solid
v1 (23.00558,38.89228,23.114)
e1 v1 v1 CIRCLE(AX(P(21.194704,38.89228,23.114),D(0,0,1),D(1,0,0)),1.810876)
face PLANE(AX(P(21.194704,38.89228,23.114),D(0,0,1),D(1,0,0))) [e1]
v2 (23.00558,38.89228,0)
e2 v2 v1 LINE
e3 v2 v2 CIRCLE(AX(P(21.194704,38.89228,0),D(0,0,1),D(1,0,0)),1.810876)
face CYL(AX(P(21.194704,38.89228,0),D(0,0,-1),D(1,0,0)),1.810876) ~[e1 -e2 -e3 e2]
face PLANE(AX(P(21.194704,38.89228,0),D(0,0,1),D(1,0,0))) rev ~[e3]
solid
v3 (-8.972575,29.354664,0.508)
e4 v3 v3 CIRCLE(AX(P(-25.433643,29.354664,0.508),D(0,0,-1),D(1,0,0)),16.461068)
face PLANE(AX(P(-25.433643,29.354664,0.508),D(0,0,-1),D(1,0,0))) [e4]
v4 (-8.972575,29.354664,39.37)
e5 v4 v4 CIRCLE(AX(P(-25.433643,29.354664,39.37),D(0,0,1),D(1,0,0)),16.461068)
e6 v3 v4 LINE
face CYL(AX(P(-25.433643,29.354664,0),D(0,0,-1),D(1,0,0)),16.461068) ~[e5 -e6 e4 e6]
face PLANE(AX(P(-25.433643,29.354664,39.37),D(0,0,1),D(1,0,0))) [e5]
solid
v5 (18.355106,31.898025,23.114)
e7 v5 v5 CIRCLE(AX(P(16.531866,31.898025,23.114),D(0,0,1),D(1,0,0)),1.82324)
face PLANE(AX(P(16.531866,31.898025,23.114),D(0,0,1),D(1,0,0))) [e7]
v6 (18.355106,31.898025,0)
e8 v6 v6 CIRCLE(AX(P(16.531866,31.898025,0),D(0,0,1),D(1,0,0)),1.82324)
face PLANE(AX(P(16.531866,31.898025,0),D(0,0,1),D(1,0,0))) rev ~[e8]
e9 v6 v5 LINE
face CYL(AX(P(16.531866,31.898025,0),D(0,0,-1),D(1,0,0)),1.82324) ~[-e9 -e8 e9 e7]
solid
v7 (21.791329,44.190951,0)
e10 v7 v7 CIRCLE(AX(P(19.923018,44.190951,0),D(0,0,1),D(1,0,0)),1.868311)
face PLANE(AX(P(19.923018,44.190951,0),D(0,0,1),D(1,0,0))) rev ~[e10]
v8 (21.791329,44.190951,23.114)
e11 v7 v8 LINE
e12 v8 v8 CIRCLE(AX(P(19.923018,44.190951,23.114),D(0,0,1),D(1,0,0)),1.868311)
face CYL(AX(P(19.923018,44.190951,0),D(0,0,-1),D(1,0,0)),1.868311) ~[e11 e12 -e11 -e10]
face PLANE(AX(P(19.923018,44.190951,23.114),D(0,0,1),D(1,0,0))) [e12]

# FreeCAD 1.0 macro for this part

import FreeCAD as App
import Part
import Sketcher
from FreeCAD import Vector
Q = App.Units.Quantity

doc = App.newDocument("Part")
params = doc.addObject("Spreadsheet::Sheet", "Params")
for row, (alias, value) in enumerate([
    ("pad1_length", "1.55 in"),
    ("pocket1_length", "0.02 in"),
    ("pad2_length", "0.91 in"),
], start=1):
    params.set(f"A{row}", alias)
    params.set(f"B{row}", "=" + value)
    params.setAlias(f"B{row}", alias)

body = doc.addObject("PartDesign::Body", "Body")

sketch1 = body.newObject("Sketcher::SketchObject", "Sketch")
sketch1.AttachmentSupport = (doc.getObject("XY_Plane"), [""])
sketch1.MapMode = "FlatFace"
sketch1.addGeometry(Part.Circle(Vector(-25, 29, 0), Vector(0, 0, 1), 16), False)
sketch1.addConstraint([
    Sketcher.Constraint("Diameter", 0, Q("32.922136 mm")),
    Sketcher.Constraint("DistanceX", 0, 3, -1, 1, Q("25.433643 mm")),
    Sketcher.Constraint("DistanceY", -1, 1, 0, 3, Q("29.354664 mm")),
])
pad1 = body.newObject("PartDesign::Pad", "Pad")
pad1.Profile = sketch1
pad1.setExpression("Length", "Params.pad1_length")

sketch2 = body.newObject("Sketcher::SketchObject", "Sketch001")
sketch2.AttachmentSupport = (doc.getObject("XY_Plane"), [""])
sketch2.MapMode = "FlatFace"
sketch2.addGeometry(Part.Circle(Vector(-25, 29, 0), Vector(0, 0, 1), 16), False)
sketch2.addConstraint([
    Sketcher.Constraint("Diameter", 0, Q("32.922136 mm")),
    Sketcher.Constraint("DistanceX", 0, 3, -1, 1, Q("25.433643 mm")),
    Sketcher.Constraint("DistanceY", -1, 1, 0, 3, Q("29.354664 mm")),
])
pocket1 = body.newObject("PartDesign::Pocket", "Pocket")
pocket1.Profile = sketch2
pocket1.setExpression("Length", "Params.pocket1_length")
pocket1.Reversed = True
body2 = doc.addObject("PartDesign::Body", "Body001")
body2.AllowCompound = True

sketch3 = body2.newObject("Sketcher::SketchObject", "Sketch002")
sketch3.AttachmentSupport = (doc.getObject("XY_Plane001"), [""])
sketch3.MapMode = "FlatFace"
sketch3.addGeometry([
    Part.Circle(Vector(16.5, 31.9, 0), Vector(0, 0, 1), 1.8),
    Part.Circle(Vector(21.2, 38.9, 0), Vector(0, 0, 1), 1.8),
    Part.Circle(Vector(19.9, 44.2, 0), Vector(0, 0, 1), 1.9),
], False)
sketch3.addConstraint([
    Sketcher.Constraint("Diameter", 0, Q("3.64648 mm")),
    Sketcher.Constraint("Diameter", 1, Q("3.621752 mm")),
    Sketcher.Constraint("Diameter", 2, Q("3.736622 mm")),
    Sketcher.Constraint("DistanceY", -1, 1, 1, 3, Q("38.89228 mm")),
    Sketcher.Constraint("DistanceY", -1, 1, 2, 3, Q("44.190951 mm")),
    Sketcher.Constraint("DistanceX", 0, 3, 1, 3, Q("4.662838 mm")),
    Sketcher.Constraint("DistanceX", 0, 3, 2, 3, Q("3.391152 mm")),
    Sketcher.Constraint("DistanceX", -1, 1, 0, 3, Q("16.531866 mm")),
    Sketcher.Constraint("DistanceY", -1, 1, 0, 3, Q("31.898025 mm")),
])
pad2 = body2.newObject("PartDesign::Pad", "Pad001")
pad2.Profile = sketch3
pad2.setExpression("Length", "Params.pad2_length")

doc.recompute()
